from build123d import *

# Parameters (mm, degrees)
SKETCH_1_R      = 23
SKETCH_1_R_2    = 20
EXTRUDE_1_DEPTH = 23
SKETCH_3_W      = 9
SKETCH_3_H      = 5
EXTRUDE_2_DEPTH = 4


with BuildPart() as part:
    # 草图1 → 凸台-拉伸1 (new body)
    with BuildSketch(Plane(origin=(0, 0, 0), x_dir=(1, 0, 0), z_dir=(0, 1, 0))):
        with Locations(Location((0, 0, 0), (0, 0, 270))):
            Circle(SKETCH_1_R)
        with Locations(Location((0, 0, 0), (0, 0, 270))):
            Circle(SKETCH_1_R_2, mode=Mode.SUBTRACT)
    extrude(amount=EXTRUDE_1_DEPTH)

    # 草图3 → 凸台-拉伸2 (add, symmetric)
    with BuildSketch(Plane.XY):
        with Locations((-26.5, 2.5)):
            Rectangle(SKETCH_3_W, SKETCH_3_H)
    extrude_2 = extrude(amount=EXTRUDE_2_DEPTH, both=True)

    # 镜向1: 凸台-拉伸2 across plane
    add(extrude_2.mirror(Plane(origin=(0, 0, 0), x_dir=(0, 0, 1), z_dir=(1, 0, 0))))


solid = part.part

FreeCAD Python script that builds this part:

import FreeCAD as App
import Part
import Sketcher

V = App.Vector
Q = App.Units.Quantity

doc = App.newDocument("Part")
body = doc.addObject("PartDesign::Body", "Body")

# Sketch on XZ plane
sketch1 = body.newObject("Sketcher::SketchObject", "Sketch")
sketch1.AttachmentSupport = (doc.getObject("XZ_Plane"), [""])
sketch1.MapMode = "FlatFace"
sketch1.addGeometry([
    Part.Circle(V(0, 0, 0), V(0, 0, 1), 23),
    Part.Circle(V(0, 0, 0), V(0, 0, 1), 20),
], False)
sketch1.addConstraint([
    Sketcher.Constraint("Coincident", 0, 3, -1, 1),
    Sketcher.Constraint("Coincident", 1, 3, -1, 1),
    Sketcher.Constraint("Diameter", 0, Q("46 mm")),
    Sketcher.Constraint("Diameter", 1, Q("40 mm")),
])
pad1 = body.newObject("PartDesign::Pad", "Pad")
pad1.Profile = sketch1
pad1.Length = 23
pad1.Reversed = True

# Sketch on XY plane
sketch2 = body.newObject("Sketcher::SketchObject", "Sketch001")
sketch2.AttachmentSupport = (doc.getObject("XY_Plane"), [""])
sketch2.MapMode = "FlatFace"
sketch2.addGeometry([
    Part.LineSegment(V(-31, 5, 0), V(-31, 0, 0)),
    Part.LineSegment(V(-31, 0, 0), V(-22, 0, 0)),
    Part.LineSegment(V(-22, 0, 0), V(-22, 5, 0)),
    Part.LineSegment(V(-22, 5, 0), V(-31, 5, 0)),
], False)
sketch2.addConstraint([
    Sketcher.Constraint("Coincident", 0, 2, 1, 1),
    Sketcher.Constraint("Coincident", 1, 2, 2, 1),
    Sketcher.Constraint("Coincident", 2, 2, 3, 1),
    Sketcher.Constraint("Coincident", 3, 2, 0, 1),
    Sketcher.Constraint("Vertical", 0),
    Sketcher.Constraint("Horizontal", 1),
    Sketcher.Constraint("Vertical", 2),
    Sketcher.Constraint("Horizontal", 3),
    Sketcher.Constraint("PointOnObject", 0, 2, -1),
    Sketcher.Constraint("DistanceX", 1, 1, 1, 2, Q("9 mm")),
    Sketcher.Constraint("DistanceY", 0, 2, 0, 1, Q("5 mm")),
    Sketcher.Constraint("DistanceX", 0, 2, -1, 1, Q("31 mm")),
])
pad2 = body.newObject("PartDesign::Pad", "Pad001")
pad2.Profile = sketch2
pad2.Length = 8
pad2.Midplane = True
doc.recompute()

mirrored = body.newObject("PartDesign::Mirrored", "Mirrored")
mirrored.Originals = [pad2]
mirrored.MirrorPlane = (doc.getObject("YZ_Plane"), [""])
body.Tip = mirrored

doc.recompute()
